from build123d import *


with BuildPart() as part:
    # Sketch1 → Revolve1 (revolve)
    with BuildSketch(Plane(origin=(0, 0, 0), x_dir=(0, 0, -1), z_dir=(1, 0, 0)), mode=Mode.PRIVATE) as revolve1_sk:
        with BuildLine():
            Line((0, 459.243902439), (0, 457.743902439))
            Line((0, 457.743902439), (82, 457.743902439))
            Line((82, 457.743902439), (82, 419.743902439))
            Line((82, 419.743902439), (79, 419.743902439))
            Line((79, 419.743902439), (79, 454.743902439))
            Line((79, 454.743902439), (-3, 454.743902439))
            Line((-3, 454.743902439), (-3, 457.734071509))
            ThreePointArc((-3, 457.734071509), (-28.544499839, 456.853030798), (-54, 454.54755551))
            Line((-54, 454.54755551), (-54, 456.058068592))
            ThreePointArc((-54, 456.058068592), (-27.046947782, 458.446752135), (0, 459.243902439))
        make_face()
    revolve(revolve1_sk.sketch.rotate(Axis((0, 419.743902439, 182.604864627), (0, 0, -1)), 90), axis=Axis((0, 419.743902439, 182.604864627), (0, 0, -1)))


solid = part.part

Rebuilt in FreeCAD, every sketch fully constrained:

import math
import FreeCAD as App
import Part
import Sketcher
from FreeCAD import Vector

doc = App.newDocument("Part")
body = doc.addObject("PartDesign::Body", "Body")

sketch1 = body.newObject("Sketcher::SketchObject", "Sketch")
sketch1.AttachmentSupport = (doc.getObject("YZ_Plane"), [""])
sketch1.MapMode = "FlatFace"
sketch1.addGeometry([
    Part.LineSegment(Vector(457.7, 0, 0), Vector(459.2, 0, 0)),
    Part.ArcOfCircle(Part.Circle(Vector(0, 0, 0), Vector(0, 0, 1), 459.2), math.radians(0), math.radians(6.75)),
    Part.LineSegment(Vector(456.1, 54, 0), Vector(454.5, 54, 0)),
    Part.ArcOfCircle(Part.Circle(Vector(0, 0, 0), Vector(0, 0, 1), 457.7), math.radians(0.38), math.radians(6.77)),
    Part.LineSegment(Vector(457.7, 3, 0), Vector(454.7, 3, 0)),
    Part.LineSegment(Vector(454.7, 3, 0), Vector(454.7, -79, 0)),
    Part.LineSegment(Vector(454.7, -79, 0), Vector(419.7, -79, 0)),
    Part.LineSegment(Vector(419.7, -79, 0), Vector(419.7, -82, 0)),
    Part.LineSegment(Vector(419.7, -82, 0), Vector(457.7, -82, 0)),
    Part.LineSegment(Vector(457.7, -82, 0), Vector(457.7, 0, 0)),
], False)
sketch1.addGeometry(Part.LineSegment(Vector(419.7, 54, 0), Vector(419.7, -82, 0)), True)
sketch1.addConstraint([
    Sketcher.Constraint("Coincident", 0, 2, 1, 1),
    Sketcher.Constraint("Coincident", 1, 2, 2, 1),
    Sketcher.Constraint("Coincident", 2, 2, 3, 2),
    Sketcher.Constraint("Coincident", 3, 1, 4, 1),
    Sketcher.Constraint("Coincident", 4, 2, 5, 1),
    Sketcher.Constraint("Coincident", 5, 2, 6, 1),
    Sketcher.Constraint("Coincident", 6, 2, 7, 1),
    Sketcher.Constraint("Coincident", 7, 2, 8, 1),
    Sketcher.Constraint("Coincident", 8, 2, 9, 1),
    Sketcher.Constraint("Coincident", 9, 2, 0, 1),
    Sketcher.Constraint("Horizontal", 0),
    Sketcher.Constraint("Horizontal", 2),
    Sketcher.Constraint("Horizontal", 4),
    Sketcher.Constraint("Vertical", 5),
    Sketcher.Constraint("Horizontal", 6),
    Sketcher.Constraint("Vertical", 7),
    Sketcher.Constraint("Horizontal", 8),
    Sketcher.Constraint("Vertical", 9),
    Sketcher.Constraint("Vertical", 10),
    Sketcher.Constraint("Coincident", 1, 3, -1, 1),
    Sketcher.Constraint("Coincident", 3, 3, -1, 1),
    Sketcher.Constraint("Coincident", 10, 2, 7, 2),
    Sketcher.Constraint("PointOnObject", 0, 2, -1),
    Sketcher.Constraint("Horizontal", 2, 2, 10, 1),
    Sketcher.Constraint("Equal", 5, 9),
    Sketcher.Constraint("DistanceX", 6, 2, 6, 1, 35.0),
    Sketcher.Constraint("DistanceX", 8, 1, 8, 2, 38.0),
    Sketcher.Constraint("DistanceY", 5, 2, 5, 1, 82.0),
    Sketcher.Constraint("DistanceY", 7, 2, 7, 1, 3.0),
    Sketcher.Constraint("DistanceY", 10, 2, 10, 1, 136.0),
    Sketcher.Constraint("DistanceX", 0, 1, 0, 2, 1.5),
    Sketcher.Constraint("Radius", 1, 459.243903),
    Sketcher.Constraint("Radius", 3, 457.743902),
])
revolution = body.newObject("PartDesign::Revolution", "Revolution")
revolution.Profile = sketch1
revolution.ReferenceAxis = (sketch1, ["Axis0"])
revolution.Angle = 360

doc.recompute()
